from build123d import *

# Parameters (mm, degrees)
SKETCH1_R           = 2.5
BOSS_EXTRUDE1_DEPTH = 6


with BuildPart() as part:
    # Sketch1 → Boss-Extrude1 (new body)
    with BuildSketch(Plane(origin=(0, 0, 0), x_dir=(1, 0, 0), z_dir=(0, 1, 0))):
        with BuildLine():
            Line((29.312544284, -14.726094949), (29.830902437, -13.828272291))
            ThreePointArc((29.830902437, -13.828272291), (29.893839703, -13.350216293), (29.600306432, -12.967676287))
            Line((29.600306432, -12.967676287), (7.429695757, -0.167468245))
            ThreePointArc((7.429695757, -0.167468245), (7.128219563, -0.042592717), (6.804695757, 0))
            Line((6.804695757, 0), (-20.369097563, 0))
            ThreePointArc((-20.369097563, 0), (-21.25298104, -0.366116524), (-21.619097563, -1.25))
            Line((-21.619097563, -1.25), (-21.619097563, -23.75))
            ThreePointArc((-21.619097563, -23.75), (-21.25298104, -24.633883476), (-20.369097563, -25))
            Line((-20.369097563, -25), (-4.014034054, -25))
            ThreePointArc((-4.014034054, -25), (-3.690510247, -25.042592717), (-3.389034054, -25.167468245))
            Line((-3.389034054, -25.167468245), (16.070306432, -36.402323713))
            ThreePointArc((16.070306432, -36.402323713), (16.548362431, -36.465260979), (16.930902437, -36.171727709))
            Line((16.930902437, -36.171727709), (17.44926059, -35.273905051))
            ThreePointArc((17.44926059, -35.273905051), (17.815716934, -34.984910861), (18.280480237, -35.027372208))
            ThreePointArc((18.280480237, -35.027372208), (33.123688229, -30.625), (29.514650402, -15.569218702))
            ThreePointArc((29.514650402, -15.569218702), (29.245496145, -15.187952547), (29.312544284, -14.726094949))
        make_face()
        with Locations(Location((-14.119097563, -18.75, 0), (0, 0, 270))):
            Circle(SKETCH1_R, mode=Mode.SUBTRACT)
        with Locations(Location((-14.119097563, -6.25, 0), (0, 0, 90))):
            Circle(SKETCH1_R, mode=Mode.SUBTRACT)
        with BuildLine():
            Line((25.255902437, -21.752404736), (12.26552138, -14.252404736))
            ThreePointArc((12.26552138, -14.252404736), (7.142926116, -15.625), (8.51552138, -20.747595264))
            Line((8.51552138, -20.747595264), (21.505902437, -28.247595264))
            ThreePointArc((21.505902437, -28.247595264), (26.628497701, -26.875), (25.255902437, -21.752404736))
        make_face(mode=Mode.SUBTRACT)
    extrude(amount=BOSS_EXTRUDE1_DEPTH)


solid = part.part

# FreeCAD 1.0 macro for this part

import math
import FreeCAD as App
import Part
import Sketcher

V = App.Vector
Q = App.Units.Quantity

doc = App.newDocument("Part")
body = doc.addObject("PartDesign::Body", "Body")

sketch1 = body.newObject("Sketcher::SketchObject", "Sketch")
sketch1.AttachmentSupport = (doc.getObject("XZ_Plane"), [""])
sketch1.MapMode = "FlatFace"
sketch1.addGeometry([
    Part.LineSegment(V(29.312544, 14.726095, 0), V(29.830902, 13.828272, 0)),
    Part.ArcOfCircle(Part.Circle(V(29.285306, 13.513272, 0), V(0, 0, 1), 0.63), math.radians(-60), math.radians(30)),
    Part.LineSegment(V(29.600306, 12.967676, 0), V(7.429696, 0.167468, 0)),
    Part.ArcOfCircle(Part.Circle(V(6.804696, 1.25, 0), V(0, 0, 1), 1.25), math.radians(-90), math.radians(-60)),
    Part.LineSegment(V(6.804696, 0, 0), V(-20.369098, 0, 0)),
    Part.ArcOfCircle(Part.Circle(V(-20.369098, 1.25, 0), V(0, 0, 1), 1.25), math.radians(180), math.radians(270)),
    Part.LineSegment(V(-21.619098, 1.25, 0), V(-21.619098, 23.75, 0)),
    Part.ArcOfCircle(Part.Circle(V(-20.369098, 23.75, 0), V(0, 0, 1), 1.25), math.radians(90), math.radians(180)),
    Part.LineSegment(V(-20.369098, 25, 0), V(-4.014034, 25, 0)),
    Part.ArcOfCircle(Part.Circle(V(-4.014034, 26.25, 0), V(0, 0, 1), 1.25), math.radians(-90), math.radians(-60)),
    Part.LineSegment(V(-3.389034, 25.167468, 0), V(16.070306, 36.402324, 0)),
    Part.ArcOfCircle(Part.Circle(V(16.385306, 35.856728, 0), V(0, 0, 1), 0.63), math.radians(30), math.radians(120)),
    Part.LineSegment(V(16.930902, 36.171728, 0), V(17.449261, 35.273905, 0)),
    Part.ArcOfCircle(Part.Circle(V(17.994857, 35.588905, 0), V(0, 0, 1), 0.63), math.radians(-150), math.radians(-63.039838)),
    Part.ArcOfCircle(Part.Circle(V(23.380902, 25, 0), V(0, 0, 1), 11.25), math.radians(-56.960162), math.radians(116.960162)),
    Part.ArcOfCircle(Part.Circle(V(29.85814, 15.041095, 0), V(0, 0, 1), 0.63), math.radians(123.039838), math.radians(210)),
    Part.Circle(V(-14.119098, 18.75, 0), V(0, 0, 1), 2.5),
    Part.LineSegment(V(12.265521, 14.252405, 0), V(25.255902, 21.752405, 0)),
    Part.ArcOfCircle(Part.Circle(V(23.380902, 25, 0), V(0, 0, 1), 3.75), math.radians(-60), math.radians(120)),
    Part.LineSegment(V(21.505902, 28.247595, 0), V(8.515521, 20.747595, 0)),
    Part.ArcOfCircle(Part.Circle(V(10.390521, 17.5, 0), V(0, 0, 1), 3.75), math.radians(120), math.radians(300)),
    Part.Circle(V(-14.119098, 6.25, 0), V(0, 0, 1), 2.5),
], False)
sketch1.addConstraint([
    Sketcher.Constraint("Tangent", 0, 2, 1, 2),
    Sketcher.Constraint("Tangent", 1, 1, 2, 1),
    Sketcher.Constraint("Tangent", 2, 2, 3, 2),
    Sketcher.Constraint("Tangent", 3, 1, 4, 1),
    Sketcher.Constraint("Tangent", 4, 2, 5, 2),
    Sketcher.Constraint("Tangent", 5, 1, 6, 1),
    Sketcher.Constraint("Tangent", 6, 2, 7, 2),
    Sketcher.Constraint("Tangent", 7, 1, 8, 1),
    Sketcher.Constraint("Tangent", 8, 2, 9, 1),
    Sketcher.Constraint("Tangent", 9, 2, 10, 1),
    Sketcher.Constraint("Tangent", 10, 2, 11, 2),
    Sketcher.Constraint("Tangent", 11, 1, 12, 1),
    Sketcher.Constraint("Tangent", 12, 2, 13, 1),
    Sketcher.Constraint("Tangent", 13, 2, 14, 2),
    Sketcher.Constraint("Tangent", 14, 1, 15, 1),
    Sketcher.Constraint("Tangent", 15, 2, 0, 1),
    Sketcher.Constraint("Tangent", 17, 2, 18, 1),
    Sketcher.Constraint("Tangent", 18, 2, 19, 1),
    Sketcher.Constraint("Tangent", 19, 2, 20, 1),
    Sketcher.Constraint("Tangent", 20, 2, 17, 1),
    Sketcher.Constraint("Horizontal", 4),
    Sketcher.Constraint("Vertical", 6),
    Sketcher.Constraint("Horizontal", 8),
    Sketcher.Constraint("Coincident", 18, 3, 14, 3),
    Sketcher.Constraint("Equal", 3, 5),
    Sketcher.Constraint("Equal", 5, 7),
    Sketcher.Constraint("Equal", 7, 9),
    Sketcher.Constraint("Equal", 1, 11),
    Sketcher.Constraint("Equal", 11, 13),
    Sketcher.Constraint("Equal", 13, 15),
    Sketcher.Constraint("Equal", 18, 20),
    Sketcher.Constraint("Equal", 16, 21),
    Sketcher.Constraint("PointOnObject", 3, 1, -1),
    Sketcher.Constraint("Perpendicular", 0, 2),
    Sketcher.Constraint("Parallel", 2, 10),
    Sketcher.Constraint("Perpendicular", 10, 12),
    Sketcher.Constraint("Perpendicular", 12, 17),
    Sketcher.Constraint("Horizontal", 18, 3, 7, 1),
    Sketcher.Constraint("Vertical", 16, 3, 21, 3),
    Sketcher.Constraint("Equal", 0, 12),
    Sketcher.Constraint("Diameter", 16, 5.0),
    Sketcher.Constraint("Angle", 0, Q("-60 deg")),
    Sketcher.Constraint("Radius", 1, 0.63),
    Sketcher.Constraint("Radius", 3, 1.25),
    Sketcher.Constraint("Radius", 14, 11.25),
    Sketcher.Constraint("Radius", 18, 3.75),
    Sketcher.Constraint("Distance", 17, 15.0),
    Sketcher.Constraint("DistanceY", 6, 1, 6, 2, 22.5),
    Sketcher.Constraint("DistanceY", 16, 3, 7, 3, 5.0),
    Sketcher.Constraint("DistanceY", 5, 3, 21, 3, 5.0),
    Sketcher.Constraint("DistanceX", 11, 3, 1, 3, 12.9),
    Sketcher.Constraint("DistanceX", 5, 1, 21, 3, 7.5),
    Sketcher.Constraint("DistanceX", 18, 3, 0, 2, 6.45),
    Sketcher.Constraint("Distance", 10, 22.469711),
    Sketcher.Constraint("DistanceX", 4, 2, 4, 1, 27.173793),
    Sketcher.Constraint("DistanceX", -1, 1, 15, 3, 29.85814),
])
pad1 = body.newObject("PartDesign::Pad", "Pad")
pad1.Profile = sketch1
pad1.Length = 6
pad1.Reversed = True

doc.recompute()
